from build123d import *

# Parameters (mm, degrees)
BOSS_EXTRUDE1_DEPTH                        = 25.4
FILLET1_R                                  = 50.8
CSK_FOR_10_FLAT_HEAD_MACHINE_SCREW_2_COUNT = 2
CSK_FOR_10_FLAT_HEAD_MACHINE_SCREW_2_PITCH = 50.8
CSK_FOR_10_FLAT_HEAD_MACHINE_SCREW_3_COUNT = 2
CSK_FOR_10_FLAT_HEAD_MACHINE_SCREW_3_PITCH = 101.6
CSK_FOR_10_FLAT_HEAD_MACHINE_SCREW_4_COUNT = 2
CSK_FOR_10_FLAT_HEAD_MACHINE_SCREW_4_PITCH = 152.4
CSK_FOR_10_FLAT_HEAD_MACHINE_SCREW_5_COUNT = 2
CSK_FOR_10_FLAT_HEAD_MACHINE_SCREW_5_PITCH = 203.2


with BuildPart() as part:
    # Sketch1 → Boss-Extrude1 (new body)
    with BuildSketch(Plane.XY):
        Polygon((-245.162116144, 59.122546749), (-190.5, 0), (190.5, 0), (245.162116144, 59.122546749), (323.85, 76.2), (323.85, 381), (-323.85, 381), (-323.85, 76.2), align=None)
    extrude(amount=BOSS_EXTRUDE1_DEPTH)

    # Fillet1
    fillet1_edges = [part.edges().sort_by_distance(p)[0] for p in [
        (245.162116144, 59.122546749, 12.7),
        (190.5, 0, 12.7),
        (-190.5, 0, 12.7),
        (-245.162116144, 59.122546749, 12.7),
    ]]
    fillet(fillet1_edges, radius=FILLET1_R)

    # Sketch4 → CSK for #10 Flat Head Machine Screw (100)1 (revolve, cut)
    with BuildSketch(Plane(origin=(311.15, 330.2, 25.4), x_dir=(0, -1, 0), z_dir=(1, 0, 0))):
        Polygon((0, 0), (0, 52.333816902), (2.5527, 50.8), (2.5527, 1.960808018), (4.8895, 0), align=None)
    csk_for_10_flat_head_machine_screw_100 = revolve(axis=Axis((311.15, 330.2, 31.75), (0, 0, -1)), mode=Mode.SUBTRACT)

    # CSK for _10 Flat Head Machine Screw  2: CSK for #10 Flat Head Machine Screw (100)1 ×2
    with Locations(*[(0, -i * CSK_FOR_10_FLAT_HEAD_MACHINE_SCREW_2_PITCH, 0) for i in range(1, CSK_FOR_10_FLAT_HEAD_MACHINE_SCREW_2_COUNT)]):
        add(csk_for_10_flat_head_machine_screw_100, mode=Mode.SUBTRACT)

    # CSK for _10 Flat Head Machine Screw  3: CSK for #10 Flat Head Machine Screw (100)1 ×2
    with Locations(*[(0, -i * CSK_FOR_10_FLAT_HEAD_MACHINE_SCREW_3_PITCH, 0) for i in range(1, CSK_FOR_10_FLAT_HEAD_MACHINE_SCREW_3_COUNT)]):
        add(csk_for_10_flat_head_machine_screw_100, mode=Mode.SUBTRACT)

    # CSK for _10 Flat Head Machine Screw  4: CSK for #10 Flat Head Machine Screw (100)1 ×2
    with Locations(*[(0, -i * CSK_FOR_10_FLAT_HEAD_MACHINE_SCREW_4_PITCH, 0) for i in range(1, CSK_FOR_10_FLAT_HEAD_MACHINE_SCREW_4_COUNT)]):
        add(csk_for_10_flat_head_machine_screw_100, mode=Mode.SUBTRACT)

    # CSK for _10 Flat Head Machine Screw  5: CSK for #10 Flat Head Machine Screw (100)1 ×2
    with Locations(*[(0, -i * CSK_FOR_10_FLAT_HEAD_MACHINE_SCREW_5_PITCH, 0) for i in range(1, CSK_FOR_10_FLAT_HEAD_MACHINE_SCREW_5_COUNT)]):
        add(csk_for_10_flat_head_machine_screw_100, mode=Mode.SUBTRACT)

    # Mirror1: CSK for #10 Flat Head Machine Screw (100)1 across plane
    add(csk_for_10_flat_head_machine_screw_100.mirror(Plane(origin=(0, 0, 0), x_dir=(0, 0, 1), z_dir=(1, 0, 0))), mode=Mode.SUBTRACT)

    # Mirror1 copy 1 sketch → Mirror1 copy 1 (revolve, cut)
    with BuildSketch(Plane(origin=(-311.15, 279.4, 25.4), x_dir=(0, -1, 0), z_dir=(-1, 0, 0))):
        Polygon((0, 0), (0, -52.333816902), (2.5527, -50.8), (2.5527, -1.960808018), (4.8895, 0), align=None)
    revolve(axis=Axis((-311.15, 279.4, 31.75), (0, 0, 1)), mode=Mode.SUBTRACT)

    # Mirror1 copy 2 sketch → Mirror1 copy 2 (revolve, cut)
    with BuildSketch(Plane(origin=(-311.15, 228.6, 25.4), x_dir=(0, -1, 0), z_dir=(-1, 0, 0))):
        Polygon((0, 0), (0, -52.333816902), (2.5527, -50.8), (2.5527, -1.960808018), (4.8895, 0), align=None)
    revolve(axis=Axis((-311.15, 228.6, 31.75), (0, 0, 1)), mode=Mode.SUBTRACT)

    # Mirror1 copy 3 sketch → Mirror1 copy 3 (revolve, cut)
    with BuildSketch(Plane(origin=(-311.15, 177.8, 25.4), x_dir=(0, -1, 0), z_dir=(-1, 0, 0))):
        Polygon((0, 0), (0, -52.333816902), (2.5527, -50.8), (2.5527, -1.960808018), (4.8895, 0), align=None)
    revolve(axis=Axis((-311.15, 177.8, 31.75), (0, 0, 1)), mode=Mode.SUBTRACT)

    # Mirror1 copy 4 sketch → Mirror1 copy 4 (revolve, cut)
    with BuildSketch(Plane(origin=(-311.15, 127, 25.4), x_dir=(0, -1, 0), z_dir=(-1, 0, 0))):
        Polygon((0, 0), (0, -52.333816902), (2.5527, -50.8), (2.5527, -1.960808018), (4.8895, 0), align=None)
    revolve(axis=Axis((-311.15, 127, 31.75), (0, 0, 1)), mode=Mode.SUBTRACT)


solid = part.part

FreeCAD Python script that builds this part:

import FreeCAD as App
import Part
import Sketcher
from FreeCAD import Vector
Q = App.Units.Quantity


def edges_at(feature, points):
    """Names of the edges that pass closest to the given points."""
    edges = feature.Shape.Edges
    near = lambda p: min(range(len(edges)), key=lambda i: edges[i].distToShape(Part.Vertex(*p))[0])
    return sorted({f"Edge{near(p) + 1}" for p in points})


def add_polygon(sketch, points):
    """Adds a closed chain of lines whose ends are joined by coincident constraints."""
    first, n = sketch.GeometryCount, len(points)
    for a, b in zip(points, points[1:] + points[:1]):
        sketch.addGeometry(Part.LineSegment(App.Vector(*a, 0), App.Vector(*b, 0)), False)
    for i in range(n):
        sketch.addConstraint(Sketcher.Constraint("Coincident", first + i, 2, first + (i + 1) % n, 1))

doc = App.newDocument("Part")
body = doc.addObject("PartDesign::Body", "Body")

sketch1 = body.newObject("Sketcher::SketchObject", "Sketch")
sketch1.AttachmentSupport = (doc.getObject("XY_Plane"), [""])
sketch1.MapMode = "FlatFace"
add_polygon(sketch1, [(-245, 59), (-190, 0), (190, 0), (245, 59), (324, 76), (324, 381), (-324, 381), (-324, 76)])
sketch1.addConstraint([
    Sketcher.Constraint("Horizontal", 1),
    Sketcher.Constraint("Vertical", 4),
    Sketcher.Constraint("Horizontal", 5),
    Sketcher.Constraint("Vertical", 6),
    Sketcher.Constraint("Symmetric", 0, 2, 1, 2, -1, 1),
    Sketcher.Constraint("Symmetric", 3, 2, 6, 2, -2),
    Sketcher.Constraint("Symmetric", 2, 2, 7, 2, -2),
    Sketcher.Constraint("Equal", 2, 3),
    Sketcher.Constraint("DistanceX", 1, 1, 1, 2, Q("15 in")),
    Sketcher.Constraint("DistanceY", 4, 1, 4, 2, Q("12 in")),
    Sketcher.Constraint("DistanceX", 5, 2, 5, 1, Q("25.5 in")),
    Sketcher.Constraint("DistanceY", -1, 1, 3, 2, Q("3 in")),
    Sketcher.Constraint("Distance", 0, Q("80.519702 mm")),
])
pad1 = body.newObject("PartDesign::Pad", "Pad")
pad1.Profile = sketch1
pad1.Length = Q("1 in")
doc.recompute()

fillet = body.newObject("PartDesign::Fillet", "Fillet")
fillet.Base = (pad1, edges_at(pad1, [
    (245.162, 59.123, 12.7),
    (190.5, 0, 12.7),
    (-190.5, 0, 12.7),
    (-245.162, 59.123, 12.7),
]))
fillet.Radius = Q("2 in")

sketch2 = body.newObject("Sketcher::SketchObject", "Sketch001")
sketch2.AttachmentSupport = (doc.getObject("YZ_Plane"), [""])
sketch2.MapMode = "FlatFace"
sketch2.AttachmentOffset = App.Placement(Vector(0, 0, 12.25 * 25.4), App.Rotation())
add_polygon(sketch2, [(330.2, -26.9), (330.2, 25.4), (325.3, 25.4), (327.6, 23.4), (327.6, -25.4)])
sketch2.addGeometry(Part.LineSegment(Vector(330.2, 25.4, 0), Vector(330.2, -26.9, 0)), True)
sketch2.addConstraint([
    Sketcher.Constraint("Vertical", 0),
    Sketcher.Constraint("Horizontal", 1),
    Sketcher.Constraint("Vertical", 3),
    Sketcher.Constraint("Vertical", 5),
    Sketcher.Constraint("Coincident", 5, 1, 0, 2),
    Sketcher.Constraint("Equal", 0, 5),
    Sketcher.Constraint("DistanceX", -1, 1, 0, 2, Q("13 in")),
    Sketcher.Constraint("DistanceY", -1, 1, 0, 2, Q("1 in")),
    Sketcher.Constraint("DistanceY", 3, 2, -1, 1, Q("1 in")),
    Sketcher.Constraint("Angle", 2, Q("-40 deg")),
    Sketcher.Constraint("Angle", 4, Q("-31 deg")),
    Sketcher.Constraint("DistanceX", 1, 2, 1, 1, Q("0.1925 in")),
    Sketcher.Constraint("DistanceX", 1, 2, 2, 2, Q("0.092 in")),
])
groove = body.newObject("PartDesign::Groove", "Groove")
groove.Profile = sketch2
groove.ReferenceAxis = (sketch2, ["Axis0"])
groove.Angle = 360
doc.recompute()

linearpattern = body.newObject("PartDesign::LinearPattern", "LinearPattern")
linearpattern.Originals = [groove]
linearpattern.Direction = (doc.getObject("Y_Axis"), [""])
linearpattern.Mode = "offset"
linearpattern.Offset = Q("2 in")
linearpattern.Occurrences = 2
linearpattern.Reversed = True
body.Tip = linearpattern
doc.recompute()

linearpattern2 = body.newObject("PartDesign::LinearPattern", "LinearPattern001")
linearpattern2.Originals = [groove]
linearpattern2.Direction = (doc.getObject("Y_Axis"), [""])
linearpattern2.Mode = "offset"
linearpattern2.Offset = Q("4 in")
linearpattern2.Occurrences = 2
linearpattern2.Reversed = True
body.Tip = linearpattern2
doc.recompute()

linearpattern3 = body.newObject("PartDesign::LinearPattern", "LinearPattern002")
linearpattern3.Originals = [groove]
linearpattern3.Direction = (doc.getObject("Y_Axis"), [""])
linearpattern3.Mode = "offset"
linearpattern3.Offset = Q("6 in")
linearpattern3.Occurrences = 2
linearpattern3.Reversed = True
body.Tip = linearpattern3
doc.recompute()

linearpattern4 = body.newObject("PartDesign::LinearPattern", "LinearPattern003")
linearpattern4.Originals = [groove]
linearpattern4.Direction = (doc.getObject("Y_Axis"), [""])
linearpattern4.Mode = "offset"
linearpattern4.Offset = Q("8 in")
linearpattern4.Occurrences = 2
linearpattern4.Reversed = True
body.Tip = linearpattern4
doc.recompute()

mirrored = body.newObject("PartDesign::Mirrored", "Mirrored")
mirrored.Originals = [groove]
mirrored.MirrorPlane = (doc.getObject("YZ_Plane"), [""])
body.Tip = mirrored

sketch3 = body.newObject("Sketcher::SketchObject", "Sketch002")
sketch3.AttachmentSupport = (doc.getObject("YZ_Plane"), [""])
sketch3.MapMode = "FlatFace"
sketch3.AttachmentOffset = App.Placement(Vector(0, 0, -12.25 * 25.4), App.Rotation())
add_polygon(sketch3, [(279.4, 25.4), (279.4, -26.9), (276.8, -25.4), (276.8, 23.4), (274.5, 25.4)])
sketch3.addGeometry(Part.LineSegment(Vector(279.4, -26.9, 0), Vector(279.4, 25.4, 0)), True)
sketch3.addConstraint([
    Sketcher.Constraint("Vertical", 0),
    Sketcher.Constraint("Vertical", 2),
    Sketcher.Constraint("Horizontal", 4),
    Sketcher.Constraint("Vertical", 5),
    Sketcher.Constraint("Coincident", 5, 1, 0, 2),
    Sketcher.Constraint("Horizontal", 3, 2, 5, 2),
    Sketcher.Constraint("DistanceX", -1, 1, 0, 2, Q("11 in")),
    Sketcher.Constraint("DistanceY", 1, 2, -1, 1, Q("1 in")),
    Sketcher.Constraint("DistanceY", -1, 1, 3, 2, Q("1 in")),
    Sketcher.Constraint("Angle", 1, Q("149 deg")),
    Sketcher.Constraint("Angle", 3, Q("140 deg")),
    Sketcher.Constraint("DistanceX", 4, 1, 4, 2, Q("0.1925 in")),
    Sketcher.Constraint("DistanceX", 3, 2, 2, 2, Q("0.092 in")),
])
groove2 = body.newObject("PartDesign::Groove", "Groove001")
groove2.Profile = sketch3
groove2.ReferenceAxis = (sketch3, ["Axis0"])
groove2.Angle = 360

sketch4 = body.newObject("Sketcher::SketchObject", "Sketch003")
sketch4.AttachmentSupport = (doc.getObject("YZ_Plane"), [""])
sketch4.MapMode = "FlatFace"
sketch4.AttachmentOffset = App.Placement(Vector(0, 0, -12.25 * 25.4), App.Rotation())
add_polygon(sketch4, [(228.6, 25.4), (228.6, -26.9), (226, -25.4), (226, 23.4), (223.7, 25.4)])
sketch4.addGeometry(Part.LineSegment(Vector(228.6, -26.9, 0), Vector(228.6, 25.4, 0)), True)
sketch4.addConstraint([
    Sketcher.Constraint("Vertical", 0),
    Sketcher.Constraint("Vertical", 2),
    Sketcher.Constraint("Horizontal", 4),
    Sketcher.Constraint("Vertical", 5),
    Sketcher.Constraint("Coincident", 5, 1, 0, 2),
    Sketcher.Constraint("Horizontal", 3, 2, 5, 2),
    Sketcher.Constraint("DistanceX", -1, 1, 0, 2, Q("9 in")),
    Sketcher.Constraint("DistanceY", 1, 2, -1, 1, Q("1 in")),
    Sketcher.Constraint("DistanceY", -1, 1, 3, 2, Q("1 in")),
    Sketcher.Constraint("Angle", 1, Q("149 deg")),
    Sketcher.Constraint("Angle", 3, Q("140 deg")),
    Sketcher.Constraint("DistanceX", 4, 1, 4, 2, Q("0.1925 in")),
    Sketcher.Constraint("DistanceX", 3, 2, 2, 2, Q("0.092 in")),
])
groove3 = body.newObject("PartDesign::Groove", "Groove002")
groove3.Profile = sketch4
groove3.ReferenceAxis = (sketch4, ["Axis0"])
groove3.Angle = 360

sketch5 = body.newObject("Sketcher::SketchObject", "Sketch004")
sketch5.AttachmentSupport = (doc.getObject("YZ_Plane"), [""])
sketch5.MapMode = "FlatFace"
sketch5.AttachmentOffset = App.Placement(Vector(0, 0, -12.25 * 25.4), App.Rotation())
add_polygon(sketch5, [(177.8, 25.4), (177.8, -26.9), (175.2, -25.4), (175.2, 23.4), (172.9, 25.4)])
sketch5.addGeometry(Part.LineSegment(Vector(177.8, -26.9, 0), Vector(177.8, 25.4, 0)), True)
sketch5.addConstraint([
    Sketcher.Constraint("Vertical", 0),
    Sketcher.Constraint("Vertical", 2),
    Sketcher.Constraint("Horizontal", 4),
    Sketcher.Constraint("Vertical", 5),
    Sketcher.Constraint("Coincident", 5, 1, 0, 2),
    Sketcher.Constraint("Horizontal", 3, 2, 5, 2),
    Sketcher.Constraint("DistanceX", -1, 1, 0, 2, Q("7 in")),
    Sketcher.Constraint("DistanceY", 1, 2, -1, 1, Q("1 in")),
    Sketcher.Constraint("DistanceY", -1, 1, 3, 2, Q("1 in")),
    Sketcher.Constraint("Angle", 1, Q("149 deg")),
    Sketcher.Constraint("Angle", 3, Q("140 deg")),
    Sketcher.Constraint("DistanceX", 4, 1, 4, 2, Q("0.1925 in")),
    Sketcher.Constraint("DistanceX", 3, 2, 2, 2, Q("0.092 in")),
])
groove4 = body.newObject("PartDesign::Groove", "Groove003")
groove4.Profile = sketch5
groove4.ReferenceAxis = (sketch5, ["Axis0"])
groove4.Angle = 360

sketch6 = body.newObject("Sketcher::SketchObject", "Sketch005")
sketch6.AttachmentSupport = (doc.getObject("YZ_Plane"), [""])
sketch6.MapMode = "FlatFace"
sketch6.AttachmentOffset = App.Placement(Vector(0, 0, -12.25 * 25.4), App.Rotation())
add_polygon(sketch6, [(127, 25.4), (127, -26.9), (124.4, -25.4), (124.4, 23.4), (122.1, 25.4)])
sketch6.addGeometry(Part.LineSegment(Vector(127, -26.9, 0), Vector(127, 25.4, 0)), True)
sketch6.addConstraint([
    Sketcher.Constraint("Vertical", 0),
    Sketcher.Constraint("Vertical", 2),
    Sketcher.Constraint("Horizontal", 4),
    Sketcher.Constraint("Vertical", 5),
    Sketcher.Constraint("Coincident", 5, 1, 0, 2),
    Sketcher.Constraint("Horizontal", 3, 2, 5, 2),
    Sketcher.Constraint("DistanceX", -1, 1, 0, 2, Q("5 in")),
    Sketcher.Constraint("DistanceY", 1, 2, -1, 1, Q("1 in")),
    Sketcher.Constraint("DistanceY", -1, 1, 3, 2, Q("1 in")),
    Sketcher.Constraint("Angle", 1, Q("149 deg")),
    Sketcher.Constraint("Angle", 3, Q("140 deg")),
    Sketcher.Constraint("DistanceX", 4, 1, 4, 2, Q("0.1925 in")),
    Sketcher.Constraint("DistanceX", 3, 2, 2, 2, Q("0.092 in")),
])
groove5 = body.newObject("PartDesign::Groove", "Groove004")
groove5.Profile = sketch6
groove5.ReferenceAxis = (sketch6, ["Axis0"])
groove5.Angle = 360

doc.recompute()
